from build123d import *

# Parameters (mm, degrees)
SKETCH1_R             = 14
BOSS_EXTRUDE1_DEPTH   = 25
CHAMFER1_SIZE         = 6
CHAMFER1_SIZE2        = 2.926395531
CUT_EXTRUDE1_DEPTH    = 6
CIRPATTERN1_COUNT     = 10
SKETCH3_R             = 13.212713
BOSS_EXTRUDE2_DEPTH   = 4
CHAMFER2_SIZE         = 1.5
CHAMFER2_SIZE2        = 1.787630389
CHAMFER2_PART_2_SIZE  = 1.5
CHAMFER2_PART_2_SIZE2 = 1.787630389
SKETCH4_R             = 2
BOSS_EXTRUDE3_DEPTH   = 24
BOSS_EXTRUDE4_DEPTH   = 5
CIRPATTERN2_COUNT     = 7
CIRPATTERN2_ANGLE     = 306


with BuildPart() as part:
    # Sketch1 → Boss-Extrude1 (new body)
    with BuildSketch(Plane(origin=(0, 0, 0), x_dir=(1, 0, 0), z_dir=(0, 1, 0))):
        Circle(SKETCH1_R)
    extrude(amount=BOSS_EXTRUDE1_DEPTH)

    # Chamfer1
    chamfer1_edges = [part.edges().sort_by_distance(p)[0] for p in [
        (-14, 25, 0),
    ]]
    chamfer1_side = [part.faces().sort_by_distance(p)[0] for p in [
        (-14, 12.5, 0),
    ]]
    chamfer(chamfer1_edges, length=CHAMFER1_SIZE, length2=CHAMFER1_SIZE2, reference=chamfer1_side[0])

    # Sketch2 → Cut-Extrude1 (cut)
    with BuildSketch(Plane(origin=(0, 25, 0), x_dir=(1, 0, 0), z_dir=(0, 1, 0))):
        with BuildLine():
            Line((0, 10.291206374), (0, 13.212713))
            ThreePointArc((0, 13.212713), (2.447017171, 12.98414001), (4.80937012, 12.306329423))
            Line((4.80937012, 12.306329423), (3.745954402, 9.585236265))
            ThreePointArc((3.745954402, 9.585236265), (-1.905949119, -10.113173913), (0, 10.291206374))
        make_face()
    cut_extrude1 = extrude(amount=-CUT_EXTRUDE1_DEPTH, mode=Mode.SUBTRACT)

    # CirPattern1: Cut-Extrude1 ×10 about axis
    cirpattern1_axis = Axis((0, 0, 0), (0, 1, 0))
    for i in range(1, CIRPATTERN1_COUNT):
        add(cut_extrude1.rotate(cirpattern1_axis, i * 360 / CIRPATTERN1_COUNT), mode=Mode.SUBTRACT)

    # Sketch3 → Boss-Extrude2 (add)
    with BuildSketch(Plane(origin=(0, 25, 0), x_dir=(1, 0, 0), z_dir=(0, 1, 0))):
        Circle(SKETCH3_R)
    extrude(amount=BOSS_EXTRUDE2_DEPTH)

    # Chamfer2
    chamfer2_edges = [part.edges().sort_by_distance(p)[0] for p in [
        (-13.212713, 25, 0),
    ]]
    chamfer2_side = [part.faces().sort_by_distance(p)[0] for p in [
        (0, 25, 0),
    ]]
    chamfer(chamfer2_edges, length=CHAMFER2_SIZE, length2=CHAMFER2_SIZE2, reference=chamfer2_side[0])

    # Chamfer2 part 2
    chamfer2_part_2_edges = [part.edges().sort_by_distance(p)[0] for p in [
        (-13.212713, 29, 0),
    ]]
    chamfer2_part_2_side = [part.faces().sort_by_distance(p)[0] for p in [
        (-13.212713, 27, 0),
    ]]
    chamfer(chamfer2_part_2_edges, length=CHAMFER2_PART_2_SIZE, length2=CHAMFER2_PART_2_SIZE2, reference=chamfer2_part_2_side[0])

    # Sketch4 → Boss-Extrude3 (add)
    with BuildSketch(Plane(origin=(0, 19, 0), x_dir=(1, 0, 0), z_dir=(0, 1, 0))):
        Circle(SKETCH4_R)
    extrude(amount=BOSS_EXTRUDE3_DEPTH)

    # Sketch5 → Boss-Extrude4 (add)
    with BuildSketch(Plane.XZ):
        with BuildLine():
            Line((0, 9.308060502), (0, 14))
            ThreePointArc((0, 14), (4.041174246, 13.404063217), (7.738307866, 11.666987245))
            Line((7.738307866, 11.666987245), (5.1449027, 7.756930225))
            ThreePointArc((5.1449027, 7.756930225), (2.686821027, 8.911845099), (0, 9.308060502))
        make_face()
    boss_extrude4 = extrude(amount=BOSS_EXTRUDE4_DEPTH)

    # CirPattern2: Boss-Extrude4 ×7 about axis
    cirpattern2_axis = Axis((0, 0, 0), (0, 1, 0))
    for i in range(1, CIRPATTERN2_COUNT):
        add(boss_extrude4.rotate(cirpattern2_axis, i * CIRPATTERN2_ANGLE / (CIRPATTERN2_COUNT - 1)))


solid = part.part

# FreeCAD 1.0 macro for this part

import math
import FreeCAD as App
import Part
import Sketcher
from FreeCAD import Vector


def edges_at(feature, points):
    """Names of the edges that pass closest to the given points."""
    edges = feature.Shape.Edges
    near = lambda p: min(range(len(edges)), key=lambda i: edges[i].distToShape(Part.Vertex(*p))[0])
    return sorted({f"Edge{near(p) + 1}" for p in points})

doc = App.newDocument("Part")
body = doc.addObject("PartDesign::Body", "Body")

# Sketch on XZ plane
sketch1 = body.newObject("Sketcher::SketchObject", "Sketch")
sketch1.AttachmentSupport = (doc.getObject("XZ_Plane"), [""])
sketch1.MapMode = "FlatFace"
sketch1.addGeometry(Part.Circle(Vector(0, 0, 0), Vector(0, 0, 1), 14), False)
sketch1.addConstraint(Sketcher.Constraint("Coincident", 0, 3, -1, 1))
sketch1.addConstraint(Sketcher.Constraint("Diameter", 0, 28.0))
pad1 = body.newObject("PartDesign::Pad", "Pad")
pad1.Profile = sketch1
pad1.Length = 25
pad1.Reversed = True
doc.recompute()

chamfer = body.newObject("PartDesign::Chamfer", "Chamfer")
chamfer.Base = (pad1, edges_at(pad1, [(-14, 25, 0)]))
chamfer.ChamferType = "Two distances"
chamfer.Size = 6
chamfer.Size2 = 2.926396

# Sketch on XZ plane
sketch2 = body.newObject("Sketcher::SketchObject", "Sketch001")
sketch2.AttachmentSupport = (doc.getObject("XZ_Plane"), [""])
sketch2.MapMode = "FlatFace"
sketch2.AttachmentOffset = App.Placement(Vector(0, 0, -25), App.Rotation())
sketch2.addGeometry(Part.LineSegment(Vector(0, -13.2, 0), Vector(0, -10.3, 0)), False)
sketch2.addGeometry(Part.ArcOfCircle(Part.Circle(Vector(0, 0, 0), Vector(0, 0, 1), 10.3), math.radians(-69), math.radians(270)), False)
sketch2.addGeometry(Part.LineSegment(Vector(3.7, -9.6, 0), Vector(4.8, -12.3, 0)), False)
sketch2.addGeometry(Part.ArcOfCircle(Part.Circle(Vector(0, 0, 0), Vector(0, 0, 1), 13.2), math.radians(-90), math.radians(-69)), False)
sketch2.addConstraint(Sketcher.Constraint("Coincident", 0, 2, 1, 2))
sketch2.addConstraint(Sketcher.Constraint("Coincident", 1, 1, 2, 1))
sketch2.addConstraint(Sketcher.Constraint("Coincident", 2, 2, 3, 2))
sketch2.addConstraint(Sketcher.Constraint("Coincident", 3, 1, 0, 1))
sketch2.addConstraint(Sketcher.Constraint("Vertical", 0))
sketch2.addConstraint(Sketcher.Constraint("Coincident", 1, 3, -1, 1))
sketch2.addConstraint(Sketcher.Constraint("Coincident", 3, 3, -1, 1))
sketch2.addConstraint(Sketcher.Constraint("PointOnObject", 0, 2, -2))
sketch2.addConstraint(Sketcher.Constraint("Radius", 1, 10.291206))
sketch2.addConstraint(Sketcher.Constraint("Radius", 3, 13.212713))
sketch2.addConstraint(Sketcher.Constraint("DistanceX", -1, 1, 2, 2, 4.80937))
sketch2.addConstraint(Sketcher.Constraint("DistanceY", 0, 2, 1, 1, 0.70597))
pocket1 = body.newObject("PartDesign::Pocket", "Pocket")
pocket1.Profile = sketch2
pocket1.Length = 6
pocket1.Reversed = True
doc.recompute()

polarpattern = body.newObject("PartDesign::PolarPattern", "PolarPattern")
polarpattern.Originals = [pocket1]
polarpattern.Axis = (doc.getObject("Y_Axis"), [""])
polarpattern.Angle = 360
polarpattern.Occurrences = 10
body.Tip = polarpattern

# Sketch on XZ plane
sketch3 = body.newObject("Sketcher::SketchObject", "Sketch002")
sketch3.AttachmentSupport = (doc.getObject("XZ_Plane"), [""])
sketch3.MapMode = "FlatFace"
sketch3.AttachmentOffset = App.Placement(Vector(0, 0, -25), App.Rotation())
sketch3.addGeometry(Part.Circle(Vector(0, 0, 0), Vector(0, 0, 1), 13), False)
sketch3.addConstraint(Sketcher.Constraint("Coincident", 0, 3, -1, 1))
sketch3.addConstraint(Sketcher.Constraint("Diameter", 0, 26.425426))
pad2 = body.newObject("PartDesign::Pad", "Pad001")
pad2.Profile = sketch3
pad2.Length = 4
pad2.Reversed = True
doc.recompute()

chamfer2 = body.newObject("PartDesign::Chamfer", "Chamfer001")
chamfer2.Base = (pad2, edges_at(pad2, [(-13.213, 25, 0)]))
chamfer2.ChamferType = "Two distances"
chamfer2.Size = 1.5
chamfer2.Size2 = 1.78763
doc.recompute()

chamfer3 = body.newObject("PartDesign::Chamfer", "Chamfer002")
chamfer3.Base = (chamfer2, edges_at(chamfer2, [(-13.213, 29, 0)]))
chamfer3.ChamferType = "Two distances"
chamfer3.Size = 1.5
chamfer3.Size2 = 1.78763

# Sketch on XZ plane
sketch4 = body.newObject("Sketcher::SketchObject", "Sketch003")
sketch4.AttachmentSupport = (doc.getObject("XZ_Plane"), [""])
sketch4.MapMode = "FlatFace"
sketch4.AttachmentOffset = App.Placement(Vector(0, 0, -19), App.Rotation())
sketch4.addGeometry(Part.Circle(Vector(0, 0, 0), Vector(0, 0, 1), 2), False)
sketch4.addConstraint(Sketcher.Constraint("Coincident", 0, 3, -1, 1))
sketch4.addConstraint(Sketcher.Constraint("Diameter", 0, 4.0))
pad3 = body.newObject("PartDesign::Pad", "Pad002")
pad3.Profile = sketch4
pad3.Length = 24
pad3.Reversed = True

# Sketch on XZ plane
sketch5 = body.newObject("Sketcher::SketchObject", "Sketch004")
sketch5.AttachmentSupport = (doc.getObject("XZ_Plane"), [""])
sketch5.MapMode = "FlatFace"
sketch5.addGeometry(Part.LineSegment(Vector(0, 14, 0), Vector(0, 9.3, 0)), False)
sketch5.addGeometry(Part.ArcOfCircle(Part.Circle(Vector(0, 0, 0), Vector(0, 0, 1), 9.3), math.radians(56), math.radians(90)), False)
sketch5.addGeometry(Part.LineSegment(Vector(5.1, 7.8, 0), Vector(7.7, 11.7, 0)), False)
sketch5.addGeometry(Part.ArcOfCircle(Part.Circle(Vector(0, 0, 0), Vector(0, 0, 1), 14), math.radians(56), math.radians(90)), False)
sketch5.addConstraint(Sketcher.Constraint("Coincident", 0, 2, 1, 2))
sketch5.addConstraint(Sketcher.Constraint("Coincident", 1, 1, 2, 1))
sketch5.addConstraint(Sketcher.Constraint("Coincident", 2, 2, 3, 1))
sketch5.addConstraint(Sketcher.Constraint("Coincident", 3, 2, 0, 1))
sketch5.addConstraint(Sketcher.Constraint("Vertical", 0))
sketch5.addConstraint(Sketcher.Constraint("Coincident", 1, 3, -1, 1))
sketch5.addConstraint(Sketcher.Constraint("Coincident", 3, 3, -1, 1))
sketch5.addConstraint(Sketcher.Constraint("PointOnObject", 0, 2, -2))
sketch5.addConstraint(Sketcher.Constraint("Radius", 3, 14.0))
sketch5.addConstraint(Sketcher.Constraint("Radius", 1, 9.308061))
sketch5.addConstraint(Sketcher.Constraint("DistanceY", -1, 1, 1, 1, 7.75693))
sketch5.addConstraint(Sketcher.Constraint("DistanceX", -1, 1, 2, 2, 7.738308))
pad4 = body.newObject("PartDesign::Pad", "Pad003")
pad4.Profile = sketch5
pad4.Length = 5
doc.recompute()

polarpattern2 = body.newObject("PartDesign::PolarPattern", "PolarPattern001")
polarpattern2.Originals = [pad4]
polarpattern2.Axis = (doc.getObject("Y_Axis"), [""])
polarpattern2.Angle = 306
polarpattern2.Occurrences = 7
body.Tip = polarpattern2

doc.recompute()
